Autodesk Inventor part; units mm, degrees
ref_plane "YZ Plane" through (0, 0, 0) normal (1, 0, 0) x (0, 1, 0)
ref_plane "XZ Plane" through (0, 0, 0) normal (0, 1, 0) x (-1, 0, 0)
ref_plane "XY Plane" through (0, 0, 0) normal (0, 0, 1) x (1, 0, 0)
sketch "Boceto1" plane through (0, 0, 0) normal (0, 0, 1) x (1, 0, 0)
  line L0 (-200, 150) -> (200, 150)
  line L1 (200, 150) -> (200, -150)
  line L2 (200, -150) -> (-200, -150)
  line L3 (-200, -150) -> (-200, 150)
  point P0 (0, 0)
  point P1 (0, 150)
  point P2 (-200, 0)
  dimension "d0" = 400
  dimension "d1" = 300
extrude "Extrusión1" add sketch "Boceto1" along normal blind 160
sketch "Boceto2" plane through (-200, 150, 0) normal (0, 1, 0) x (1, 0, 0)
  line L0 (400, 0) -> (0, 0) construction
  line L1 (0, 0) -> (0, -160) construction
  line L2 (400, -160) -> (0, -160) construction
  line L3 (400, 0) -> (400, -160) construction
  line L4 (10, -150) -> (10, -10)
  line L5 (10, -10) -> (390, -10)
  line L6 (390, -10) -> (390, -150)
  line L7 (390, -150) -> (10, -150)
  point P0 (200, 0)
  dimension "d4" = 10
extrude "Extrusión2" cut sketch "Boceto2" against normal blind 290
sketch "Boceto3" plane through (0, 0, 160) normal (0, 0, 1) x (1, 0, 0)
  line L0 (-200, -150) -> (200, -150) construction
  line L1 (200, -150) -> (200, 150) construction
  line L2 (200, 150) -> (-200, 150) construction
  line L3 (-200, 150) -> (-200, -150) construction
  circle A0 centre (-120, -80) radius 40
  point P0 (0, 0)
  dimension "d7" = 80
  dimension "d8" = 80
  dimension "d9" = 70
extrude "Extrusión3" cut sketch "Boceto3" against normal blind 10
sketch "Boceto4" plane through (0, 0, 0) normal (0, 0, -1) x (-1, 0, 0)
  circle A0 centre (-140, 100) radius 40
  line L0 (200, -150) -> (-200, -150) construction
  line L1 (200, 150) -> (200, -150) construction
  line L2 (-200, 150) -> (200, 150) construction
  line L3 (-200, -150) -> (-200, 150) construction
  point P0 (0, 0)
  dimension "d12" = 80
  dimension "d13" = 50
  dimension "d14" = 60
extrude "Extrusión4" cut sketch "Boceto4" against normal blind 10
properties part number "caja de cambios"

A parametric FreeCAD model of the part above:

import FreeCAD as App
import Part
import Sketcher


def add_polygon(sketch, points):
    """Adds a closed chain of lines whose ends are joined by coincident constraints."""
    first, n = sketch.GeometryCount, len(points)
    for a, b in zip(points, points[1:] + points[:1]):
        sketch.addGeometry(Part.LineSegment(App.Vector(*a, 0), App.Vector(*b, 0)), False)
    for i in range(n):
        sketch.addConstraint(Sketcher.Constraint("Coincident", first + i, 2, first + (i + 1) % n, 1))

doc = App.newDocument("Part")
body = doc.addObject("PartDesign::Body", "Body")

sketch1 = body.newObject("Sketcher::SketchObject", "Sketch")
sketch1.AttachmentSupport = (doc.getObject("XY_Plane"), [""])
sketch1.MapMode = "FlatFace"
add_polygon(sketch1, [(200, 150), (-200, 150), (-200, -150), (200, -150)])
sketch1.addConstraint([
    Sketcher.Constraint("Horizontal", 0),
    Sketcher.Constraint("Vertical", 1),
    Sketcher.Constraint("Horizontal", 2),
    Sketcher.Constraint("Vertical", 3),
    Sketcher.Constraint("Symmetric", 0, 2, 2, 2, -1, 1),
    Sketcher.Constraint("DistanceX", 0, 2, 0, 1, 400.0),
    Sketcher.Constraint("DistanceY", 1, 2, 1, 1, 300.0),
])
pad1 = body.newObject("PartDesign::Pad", "Pad")
pad1.Profile = sketch1
pad1.Length = 160

sketch2 = body.newObject("Sketcher::SketchObject", "Sketch001")
sketch2.AttachmentSupport = (doc.getObject("XZ_Plane"), [""])
sketch2.MapMode = "FlatFace"
sketch2.AttachmentOffset = App.Placement(App.Vector(0, 0, -150), App.Rotation())
add_polygon(sketch2, [(-190, 10), (-190, 150), (190, 150), (190, 10)])
sketch2.addConstraint([
    Sketcher.Constraint("Vertical", 0),
    Sketcher.Constraint("Horizontal", 1),
    Sketcher.Constraint("Vertical", 2),
    Sketcher.Constraint("Horizontal", 3),
    Sketcher.Constraint("DistanceY", -1, 1, 2, 2, 10.0),
    Sketcher.Constraint("DistanceX", 1, 1, 1, 2, 380.0),
    Sketcher.Constraint("DistanceY", 0, 1, 0, 2, 140.0),
    Sketcher.Constraint("DistanceX", 0, 2, -1, 1, 190.0),
])
pocket1 = body.newObject("PartDesign::Pocket", "Pocket")
pocket1.Profile = sketch2
pocket1.Length = 290
pocket1.Reversed = True

sketch3 = body.newObject("Sketcher::SketchObject", "Sketch002")
sketch3.AttachmentSupport = (doc.getObject("XY_Plane"), [""])
sketch3.MapMode = "FlatFace"
sketch3.AttachmentOffset = App.Placement(App.Vector(0, 0, 160), App.Rotation())
sketch3.addGeometry(Part.Circle(App.Vector(-120, -80, 0), App.Vector(0, 0, 1), 40), False)
sketch3.addConstraint([
    Sketcher.Constraint("Diameter", 0, 80.0),
    Sketcher.Constraint("DistanceY", 0, 3, -1, 1, 80.0),
    Sketcher.Constraint("DistanceX", 0, 3, -1, 1, 120.0),
])
pocket2 = body.newObject("PartDesign::Pocket", "Pocket001")
pocket2.Profile = sketch3
pocket2.Length = 10

sketch4 = body.newObject("Sketcher::SketchObject", "Sketch003")
sketch4.AttachmentSupport = (doc.getObject("XY_Plane"), [""])
sketch4.MapMode = "FlatFace"
sketch4.addGeometry(Part.Circle(App.Vector(140, 100, 0), App.Vector(0, 0, 1), 40), False)
sketch4.addConstraint([
    Sketcher.Constraint("Diameter", 0, 80.0),
    Sketcher.Constraint("DistanceX", -1, 1, 0, 3, 140.0),
    Sketcher.Constraint("DistanceY", -1, 1, 0, 3, 100.0),
])
pocket3 = body.newObject("PartDesign::Pocket", "Pocket002")
pocket3.Profile = sketch4
pocket3.Length = 10
pocket3.Reversed = True

doc.recompute()
